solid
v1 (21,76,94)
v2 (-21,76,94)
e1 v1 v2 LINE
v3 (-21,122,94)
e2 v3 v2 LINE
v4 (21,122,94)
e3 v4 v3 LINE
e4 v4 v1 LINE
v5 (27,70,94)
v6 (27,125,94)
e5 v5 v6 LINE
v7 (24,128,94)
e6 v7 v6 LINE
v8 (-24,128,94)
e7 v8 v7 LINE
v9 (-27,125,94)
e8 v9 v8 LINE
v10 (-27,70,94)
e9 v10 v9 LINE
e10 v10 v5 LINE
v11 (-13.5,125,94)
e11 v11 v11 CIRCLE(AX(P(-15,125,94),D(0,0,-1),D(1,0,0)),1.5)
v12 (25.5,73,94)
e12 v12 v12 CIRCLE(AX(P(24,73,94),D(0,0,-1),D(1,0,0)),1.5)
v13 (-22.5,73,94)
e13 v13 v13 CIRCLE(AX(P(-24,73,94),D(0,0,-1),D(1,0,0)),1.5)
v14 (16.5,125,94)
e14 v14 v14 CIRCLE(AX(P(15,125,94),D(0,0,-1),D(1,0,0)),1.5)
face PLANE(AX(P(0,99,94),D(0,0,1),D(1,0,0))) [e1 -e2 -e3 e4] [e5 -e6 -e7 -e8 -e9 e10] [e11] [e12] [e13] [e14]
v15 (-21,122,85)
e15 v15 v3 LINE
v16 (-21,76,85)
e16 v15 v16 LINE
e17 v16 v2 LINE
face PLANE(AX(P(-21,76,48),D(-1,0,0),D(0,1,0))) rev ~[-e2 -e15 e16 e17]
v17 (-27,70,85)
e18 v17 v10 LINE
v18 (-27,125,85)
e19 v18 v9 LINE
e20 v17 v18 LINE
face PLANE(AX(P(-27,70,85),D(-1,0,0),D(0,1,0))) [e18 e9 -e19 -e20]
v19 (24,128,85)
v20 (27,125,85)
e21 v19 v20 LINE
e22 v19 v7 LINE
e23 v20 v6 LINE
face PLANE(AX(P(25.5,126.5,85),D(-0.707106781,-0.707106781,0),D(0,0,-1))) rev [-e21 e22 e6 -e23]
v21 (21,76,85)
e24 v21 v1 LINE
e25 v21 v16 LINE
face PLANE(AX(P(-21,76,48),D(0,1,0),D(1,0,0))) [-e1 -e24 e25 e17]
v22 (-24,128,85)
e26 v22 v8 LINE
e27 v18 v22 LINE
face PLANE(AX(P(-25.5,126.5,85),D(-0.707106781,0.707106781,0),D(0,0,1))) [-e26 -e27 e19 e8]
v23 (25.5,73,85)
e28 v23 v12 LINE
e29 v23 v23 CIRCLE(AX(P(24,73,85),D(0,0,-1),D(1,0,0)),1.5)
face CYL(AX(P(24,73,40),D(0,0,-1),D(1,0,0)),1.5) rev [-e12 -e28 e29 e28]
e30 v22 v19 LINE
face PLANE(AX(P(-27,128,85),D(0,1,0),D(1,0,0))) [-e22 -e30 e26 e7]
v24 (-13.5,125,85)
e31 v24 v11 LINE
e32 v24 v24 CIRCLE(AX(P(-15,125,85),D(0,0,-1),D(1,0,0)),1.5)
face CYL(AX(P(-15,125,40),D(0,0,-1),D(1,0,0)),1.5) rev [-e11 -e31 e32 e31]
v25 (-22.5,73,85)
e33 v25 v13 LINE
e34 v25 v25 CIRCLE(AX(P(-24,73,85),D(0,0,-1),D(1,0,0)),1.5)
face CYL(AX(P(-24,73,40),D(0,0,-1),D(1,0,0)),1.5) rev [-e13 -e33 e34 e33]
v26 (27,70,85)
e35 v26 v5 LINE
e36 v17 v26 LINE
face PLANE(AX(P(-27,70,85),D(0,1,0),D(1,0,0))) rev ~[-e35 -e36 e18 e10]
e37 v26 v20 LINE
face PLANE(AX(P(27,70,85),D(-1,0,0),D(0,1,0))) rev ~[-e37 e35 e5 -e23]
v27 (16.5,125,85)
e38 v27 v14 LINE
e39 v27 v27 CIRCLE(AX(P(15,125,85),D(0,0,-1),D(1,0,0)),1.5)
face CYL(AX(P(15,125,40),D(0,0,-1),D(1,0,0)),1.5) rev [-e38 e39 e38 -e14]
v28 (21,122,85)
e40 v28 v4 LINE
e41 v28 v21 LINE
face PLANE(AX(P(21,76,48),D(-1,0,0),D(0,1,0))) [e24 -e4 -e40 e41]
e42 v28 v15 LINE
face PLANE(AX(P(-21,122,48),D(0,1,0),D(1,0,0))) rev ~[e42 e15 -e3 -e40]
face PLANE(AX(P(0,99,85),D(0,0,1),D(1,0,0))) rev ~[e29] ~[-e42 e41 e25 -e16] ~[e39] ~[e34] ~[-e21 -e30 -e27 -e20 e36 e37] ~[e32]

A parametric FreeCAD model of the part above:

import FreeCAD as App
import Part
import Sketcher


def edges_at(feature, points):
    """Names of the edges that pass closest to the given points."""
    edges = feature.Shape.Edges
    near = lambda p: min(range(len(edges)), key=lambda i: edges[i].distToShape(Part.Vertex(*p))[0])
    return sorted({f"Edge{near(p) + 1}" for p in points})

doc = App.newDocument("Part")
params = doc.addObject("Spreadsheet::Sheet", "Params")
for row, (alias, value) in enumerate([
    ("sketch1_diameter", "3 mm"),
    ("pad1_length", "60 mm"),
    ("sketch2_diameter", "3 mm"),
    ("pad2_length", "60 mm"),
    ("sketch3_diameter", "3 mm"),
    ("pad3_length", "60 mm"),
    ("sketch4_diameter", "3 mm"),
    ("pad4_length", "60 mm"),
    ("sketch5_width", "42 mm"),
    ("sketch5_height", "46 mm"),
    ("pad5_length", "50 mm"),
    ("sketch6_width", "54 mm"),
    ("sketch6_height", "58 mm"),
    ("pad6_length", "9 mm"),
    ("chamfer_size", "3 mm"),
], start=1):
    params.set(f"A{row}", alias)
    params.set(f"B{row}", "=" + value)
    params.setAlias(f"B{row}", alias)

body = doc.addObject("PartDesign::Body", "Body")

# Sketch on XY plane
sketch1 = body.newObject("Sketcher::SketchObject", "Sketch")
sketch1.AttachmentSupport = (doc.getObject("XY_Plane"), [""])
sketch1.MapMode = "FlatFace"
sketch1.AttachmentOffset = App.Placement(App.Vector(0, 0, -80), App.Rotation())
sketch1.addGeometry(Part.Circle(App.Vector(-24, 73, 0), App.Vector(0, 0, 1), 1.5), False)
sketch1.addConstraint(Sketcher.Constraint("Diameter", 0, 3.0))
sketch1.addConstraint(Sketcher.Constraint("DistanceX", 0, 3, -1, 1, 24.0))
sketch1.addConstraint(Sketcher.Constraint("DistanceY", -1, 1, 0, 3, 73.0))
sketch1.setExpression("Constraints[0]", "Params.sketch1_diameter")
pad1 = body.newObject("PartDesign::Pad", "Pad")
pad1.Profile = sketch1
pad1.setExpression("Length", "Params.pad1_length")
body2 = doc.addObject("PartDesign::Body", "Body001")

# Sketch on XY plane
sketch2 = body2.newObject("Sketcher::SketchObject", "Sketch001")
sketch2.AttachmentSupport = (doc.getObject("XY_Plane001"), [""])
sketch2.MapMode = "FlatFace"
sketch2.AttachmentOffset = App.Placement(App.Vector(0, 0, -80), App.Rotation())
sketch2.addGeometry(Part.Circle(App.Vector(-15, 125, 0), App.Vector(0, 0, 1), 1.5), False)
sketch2.addConstraint(Sketcher.Constraint("Diameter", 0, 3.0))
sketch2.addConstraint(Sketcher.Constraint("DistanceX", 0, 3, -1, 1, 15.0))
sketch2.addConstraint(Sketcher.Constraint("DistanceY", -1, 1, 0, 3, 125.0))
sketch2.setExpression("Constraints[0]", "Params.sketch2_diameter")
pad2 = body2.newObject("PartDesign::Pad", "Pad001")
pad2.Profile = sketch2
pad2.setExpression("Length", "Params.pad2_length")
body3 = doc.addObject("PartDesign::Body", "Body002")

# Sketch on XY plane
sketch3 = body3.newObject("Sketcher::SketchObject", "Sketch002")
sketch3.AttachmentSupport = (doc.getObject("XY_Plane002"), [""])
sketch3.MapMode = "FlatFace"
sketch3.AttachmentOffset = App.Placement(App.Vector(0, 0, -80), App.Rotation())
sketch3.addGeometry(Part.Circle(App.Vector(15, 125, 0), App.Vector(0, 0, 1), 1.5), False)
sketch3.addConstraint(Sketcher.Constraint("Diameter", 0, 3.0))
sketch3.addConstraint(Sketcher.Constraint("DistanceX", -1, 1, 0, 3, 15.0))
sketch3.addConstraint(Sketcher.Constraint("DistanceY", -1, 1, 0, 3, 125.0))
sketch3.setExpression("Constraints[0]", "Params.sketch3_diameter")
pad3 = body3.newObject("PartDesign::Pad", "Pad002")
pad3.Profile = sketch3
pad3.setExpression("Length", "Params.pad3_length")
body4 = doc.addObject("PartDesign::Body", "Body003")
body4.AllowCompound = True

# Sketch on XY plane
sketch4 = body4.newObject("Sketcher::SketchObject", "Sketch003")
sketch4.AttachmentSupport = (doc.getObject("XY_Plane003"), [""])
sketch4.MapMode = "FlatFace"
sketch4.AttachmentOffset = App.Placement(App.Vector(0, 0, -80), App.Rotation())
sketch4.addGeometry(Part.Circle(App.Vector(24, 73, 0), App.Vector(0, 0, 1), 1.5), False)
sketch4.addConstraint(Sketcher.Constraint("Diameter", 0, 3.0))
sketch4.addConstraint(Sketcher.Constraint("DistanceX", -1, 1, 0, 3, 24.0))
sketch4.addConstraint(Sketcher.Constraint("DistanceY", -1, 1, 0, 3, 73.0))
sketch4.setExpression("Constraints[0]", "Params.sketch4_diameter")
pad4 = body4.newObject("PartDesign::Pad", "Pad003")
pad4.Profile = sketch4
pad4.setExpression("Length", "Params.pad4_length")
doc.recompute()

boolean = body4.newObject("PartDesign::Boolean", "Boolean")
boolean.Type = "Fuse"
boolean.addObjects([body])
doc.recompute()

boolean2 = body4.newObject("PartDesign::Boolean", "Boolean001")
boolean2.Type = "Fuse"
boolean2.addObjects([body2])
doc.recompute()

boolean3 = body4.newObject("PartDesign::Boolean", "Boolean002")
boolean3.Type = "Fuse"
boolean3.addObjects([body3])
body5 = doc.addObject("PartDesign::Body", "Body004")
body5.AllowCompound = True
doc.recompute()

body4.Placement = App.Placement(App.Vector(0, 0, 120), App.Rotation(App.Vector(0, 0, 1), 0))
boolean4 = body5.newObject("PartDesign::Boolean", "Boolean003")
boolean4.Type = "Fuse"
boolean4.addObjects([body4])
body6 = doc.addObject("PartDesign::Body", "Body005")

# Sketch on XY plane
sketch5 = body6.newObject("Sketcher::SketchObject", "Sketch004")
sketch5.AttachmentSupport = (doc.getObject("XY_Plane005"), [""])
sketch5.MapMode = "FlatFace"
sketch5.AttachmentOffset = App.Placement(App.Vector(0, 0, 38), App.Rotation())
sketch5.addGeometry(Part.LineSegment(App.Vector(-21, 122, 0), App.Vector(-21, 76, 0)), False)
sketch5.addGeometry(Part.LineSegment(App.Vector(-21, 76, 0), App.Vector(21, 76, 0)), False)
sketch5.addGeometry(Part.LineSegment(App.Vector(21, 76, 0), App.Vector(21, 122, 0)), False)
sketch5.addGeometry(Part.LineSegment(App.Vector(21, 122, 0), App.Vector(-21, 122, 0)), False)
sketch5.addConstraint(Sketcher.Constraint("Coincident", 0, 2, 1, 1))
sketch5.addConstraint(Sketcher.Constraint("Coincident", 1, 2, 2, 1))
sketch5.addConstraint(Sketcher.Constraint("Coincident", 2, 2, 3, 1))
sketch5.addConstraint(Sketcher.Constraint("Coincident", 3, 2, 0, 1))
sketch5.addConstraint(Sketcher.Constraint("Vertical", 0))
sketch5.addConstraint(Sketcher.Constraint("Horizontal", 1))
sketch5.addConstraint(Sketcher.Constraint("Vertical", 2))
sketch5.addConstraint(Sketcher.Constraint("Horizontal", 3))
sketch5.addConstraint(Sketcher.Constraint("DistanceX", 1, 1, 1, 2, 42.0))
sketch5.addConstraint(Sketcher.Constraint("DistanceY", 0, 2, 0, 1, 46.0))
sketch5.addConstraint(Sketcher.Constraint("DistanceX", 0, 2, -1, 1, 21.0))
sketch5.addConstraint(Sketcher.Constraint("DistanceY", -1, 1, 0, 2, 76.0))
sketch5.setExpression("Constraints[8]", "Params.sketch5_width")
sketch5.setExpression("Constraints[9]", "Params.sketch5_height")
pad5 = body6.newObject("PartDesign::Pad", "Pad004")
pad5.Profile = sketch5
pad5.setExpression("Length", "Params.pad5_length")
body7 = doc.addObject("PartDesign::Body", "Body006")

# Sketch on XY plane
sketch6 = body7.newObject("Sketcher::SketchObject", "Sketch005")
sketch6.AttachmentSupport = (doc.getObject("XY_Plane006"), [""])
sketch6.MapMode = "FlatFace"
sketch6.AttachmentOffset = App.Placement(App.Vector(0, 0, 75), App.Rotation())
sketch6.addGeometry(Part.LineSegment(App.Vector(-27, 128, 0), App.Vector(-27, 70, 0)), False)
sketch6.addGeometry(Part.LineSegment(App.Vector(-27, 70, 0), App.Vector(27, 70, 0)), False)
sketch6.addGeometry(Part.LineSegment(App.Vector(27, 70, 0), App.Vector(27, 128, 0)), False)
sketch6.addGeometry(Part.LineSegment(App.Vector(27, 128, 0), App.Vector(-27, 128, 0)), False)
sketch6.addConstraint(Sketcher.Constraint("Coincident", 0, 2, 1, 1))
sketch6.addConstraint(Sketcher.Constraint("Coincident", 1, 2, 2, 1))
sketch6.addConstraint(Sketcher.Constraint("Coincident", 2, 2, 3, 1))
sketch6.addConstraint(Sketcher.Constraint("Coincident", 3, 2, 0, 1))
sketch6.addConstraint(Sketcher.Constraint("Vertical", 0))
sketch6.addConstraint(Sketcher.Constraint("Horizontal", 1))
sketch6.addConstraint(Sketcher.Constraint("Vertical", 2))
sketch6.addConstraint(Sketcher.Constraint("Horizontal", 3))
sketch6.addConstraint(Sketcher.Constraint("DistanceX", 1, 1, 1, 2, 54.0))
sketch6.addConstraint(Sketcher.Constraint("DistanceY", 0, 2, 0, 1, 58.0))
sketch6.addConstraint(Sketcher.Constraint("DistanceX", 0, 2, -1, 1, 27.0))
sketch6.addConstraint(Sketcher.Constraint("DistanceY", -1, 1, 0, 2, 70.0))
sketch6.setExpression("Constraints[8]", "Params.sketch6_width")
sketch6.setExpression("Constraints[9]", "Params.sketch6_height")
pad6 = body7.newObject("PartDesign::Pad", "Pad005")
pad6.Profile = sketch6
pad6.setExpression("Length", "Params.pad6_length")
doc.recompute()

boolean5 = body7.newObject("PartDesign::Boolean", "Boolean004")
boolean5.Type = "Cut"
boolean5.addObjects([body6])
body8 = doc.addObject("PartDesign::Body", "Body007")
doc.recompute()

body7.Placement = App.Placement(App.Vector(0, 0, 10), App.Rotation(App.Vector(0, 0, 1), 0))
boolean6 = body8.newObject("PartDesign::Boolean", "Boolean005")
boolean6.Type = "Fuse"
boolean6.addObjects([body7])
doc.recompute()

chamfer = body8.newObject("PartDesign::Chamfer", "Chamfer")
chamfer.Base = (boolean6, edges_at(boolean6, [(-27, 128, 89.5), (27, 128, 89.5)]))
chamfer.setExpression("Size", "Params.chamfer_size")
doc.recompute()

boolean7 = body8.newObject("PartDesign::Boolean", "Boolean006")
boolean7.Type = "Cut"
boolean7.addObjects([body5])

doc.recompute()
